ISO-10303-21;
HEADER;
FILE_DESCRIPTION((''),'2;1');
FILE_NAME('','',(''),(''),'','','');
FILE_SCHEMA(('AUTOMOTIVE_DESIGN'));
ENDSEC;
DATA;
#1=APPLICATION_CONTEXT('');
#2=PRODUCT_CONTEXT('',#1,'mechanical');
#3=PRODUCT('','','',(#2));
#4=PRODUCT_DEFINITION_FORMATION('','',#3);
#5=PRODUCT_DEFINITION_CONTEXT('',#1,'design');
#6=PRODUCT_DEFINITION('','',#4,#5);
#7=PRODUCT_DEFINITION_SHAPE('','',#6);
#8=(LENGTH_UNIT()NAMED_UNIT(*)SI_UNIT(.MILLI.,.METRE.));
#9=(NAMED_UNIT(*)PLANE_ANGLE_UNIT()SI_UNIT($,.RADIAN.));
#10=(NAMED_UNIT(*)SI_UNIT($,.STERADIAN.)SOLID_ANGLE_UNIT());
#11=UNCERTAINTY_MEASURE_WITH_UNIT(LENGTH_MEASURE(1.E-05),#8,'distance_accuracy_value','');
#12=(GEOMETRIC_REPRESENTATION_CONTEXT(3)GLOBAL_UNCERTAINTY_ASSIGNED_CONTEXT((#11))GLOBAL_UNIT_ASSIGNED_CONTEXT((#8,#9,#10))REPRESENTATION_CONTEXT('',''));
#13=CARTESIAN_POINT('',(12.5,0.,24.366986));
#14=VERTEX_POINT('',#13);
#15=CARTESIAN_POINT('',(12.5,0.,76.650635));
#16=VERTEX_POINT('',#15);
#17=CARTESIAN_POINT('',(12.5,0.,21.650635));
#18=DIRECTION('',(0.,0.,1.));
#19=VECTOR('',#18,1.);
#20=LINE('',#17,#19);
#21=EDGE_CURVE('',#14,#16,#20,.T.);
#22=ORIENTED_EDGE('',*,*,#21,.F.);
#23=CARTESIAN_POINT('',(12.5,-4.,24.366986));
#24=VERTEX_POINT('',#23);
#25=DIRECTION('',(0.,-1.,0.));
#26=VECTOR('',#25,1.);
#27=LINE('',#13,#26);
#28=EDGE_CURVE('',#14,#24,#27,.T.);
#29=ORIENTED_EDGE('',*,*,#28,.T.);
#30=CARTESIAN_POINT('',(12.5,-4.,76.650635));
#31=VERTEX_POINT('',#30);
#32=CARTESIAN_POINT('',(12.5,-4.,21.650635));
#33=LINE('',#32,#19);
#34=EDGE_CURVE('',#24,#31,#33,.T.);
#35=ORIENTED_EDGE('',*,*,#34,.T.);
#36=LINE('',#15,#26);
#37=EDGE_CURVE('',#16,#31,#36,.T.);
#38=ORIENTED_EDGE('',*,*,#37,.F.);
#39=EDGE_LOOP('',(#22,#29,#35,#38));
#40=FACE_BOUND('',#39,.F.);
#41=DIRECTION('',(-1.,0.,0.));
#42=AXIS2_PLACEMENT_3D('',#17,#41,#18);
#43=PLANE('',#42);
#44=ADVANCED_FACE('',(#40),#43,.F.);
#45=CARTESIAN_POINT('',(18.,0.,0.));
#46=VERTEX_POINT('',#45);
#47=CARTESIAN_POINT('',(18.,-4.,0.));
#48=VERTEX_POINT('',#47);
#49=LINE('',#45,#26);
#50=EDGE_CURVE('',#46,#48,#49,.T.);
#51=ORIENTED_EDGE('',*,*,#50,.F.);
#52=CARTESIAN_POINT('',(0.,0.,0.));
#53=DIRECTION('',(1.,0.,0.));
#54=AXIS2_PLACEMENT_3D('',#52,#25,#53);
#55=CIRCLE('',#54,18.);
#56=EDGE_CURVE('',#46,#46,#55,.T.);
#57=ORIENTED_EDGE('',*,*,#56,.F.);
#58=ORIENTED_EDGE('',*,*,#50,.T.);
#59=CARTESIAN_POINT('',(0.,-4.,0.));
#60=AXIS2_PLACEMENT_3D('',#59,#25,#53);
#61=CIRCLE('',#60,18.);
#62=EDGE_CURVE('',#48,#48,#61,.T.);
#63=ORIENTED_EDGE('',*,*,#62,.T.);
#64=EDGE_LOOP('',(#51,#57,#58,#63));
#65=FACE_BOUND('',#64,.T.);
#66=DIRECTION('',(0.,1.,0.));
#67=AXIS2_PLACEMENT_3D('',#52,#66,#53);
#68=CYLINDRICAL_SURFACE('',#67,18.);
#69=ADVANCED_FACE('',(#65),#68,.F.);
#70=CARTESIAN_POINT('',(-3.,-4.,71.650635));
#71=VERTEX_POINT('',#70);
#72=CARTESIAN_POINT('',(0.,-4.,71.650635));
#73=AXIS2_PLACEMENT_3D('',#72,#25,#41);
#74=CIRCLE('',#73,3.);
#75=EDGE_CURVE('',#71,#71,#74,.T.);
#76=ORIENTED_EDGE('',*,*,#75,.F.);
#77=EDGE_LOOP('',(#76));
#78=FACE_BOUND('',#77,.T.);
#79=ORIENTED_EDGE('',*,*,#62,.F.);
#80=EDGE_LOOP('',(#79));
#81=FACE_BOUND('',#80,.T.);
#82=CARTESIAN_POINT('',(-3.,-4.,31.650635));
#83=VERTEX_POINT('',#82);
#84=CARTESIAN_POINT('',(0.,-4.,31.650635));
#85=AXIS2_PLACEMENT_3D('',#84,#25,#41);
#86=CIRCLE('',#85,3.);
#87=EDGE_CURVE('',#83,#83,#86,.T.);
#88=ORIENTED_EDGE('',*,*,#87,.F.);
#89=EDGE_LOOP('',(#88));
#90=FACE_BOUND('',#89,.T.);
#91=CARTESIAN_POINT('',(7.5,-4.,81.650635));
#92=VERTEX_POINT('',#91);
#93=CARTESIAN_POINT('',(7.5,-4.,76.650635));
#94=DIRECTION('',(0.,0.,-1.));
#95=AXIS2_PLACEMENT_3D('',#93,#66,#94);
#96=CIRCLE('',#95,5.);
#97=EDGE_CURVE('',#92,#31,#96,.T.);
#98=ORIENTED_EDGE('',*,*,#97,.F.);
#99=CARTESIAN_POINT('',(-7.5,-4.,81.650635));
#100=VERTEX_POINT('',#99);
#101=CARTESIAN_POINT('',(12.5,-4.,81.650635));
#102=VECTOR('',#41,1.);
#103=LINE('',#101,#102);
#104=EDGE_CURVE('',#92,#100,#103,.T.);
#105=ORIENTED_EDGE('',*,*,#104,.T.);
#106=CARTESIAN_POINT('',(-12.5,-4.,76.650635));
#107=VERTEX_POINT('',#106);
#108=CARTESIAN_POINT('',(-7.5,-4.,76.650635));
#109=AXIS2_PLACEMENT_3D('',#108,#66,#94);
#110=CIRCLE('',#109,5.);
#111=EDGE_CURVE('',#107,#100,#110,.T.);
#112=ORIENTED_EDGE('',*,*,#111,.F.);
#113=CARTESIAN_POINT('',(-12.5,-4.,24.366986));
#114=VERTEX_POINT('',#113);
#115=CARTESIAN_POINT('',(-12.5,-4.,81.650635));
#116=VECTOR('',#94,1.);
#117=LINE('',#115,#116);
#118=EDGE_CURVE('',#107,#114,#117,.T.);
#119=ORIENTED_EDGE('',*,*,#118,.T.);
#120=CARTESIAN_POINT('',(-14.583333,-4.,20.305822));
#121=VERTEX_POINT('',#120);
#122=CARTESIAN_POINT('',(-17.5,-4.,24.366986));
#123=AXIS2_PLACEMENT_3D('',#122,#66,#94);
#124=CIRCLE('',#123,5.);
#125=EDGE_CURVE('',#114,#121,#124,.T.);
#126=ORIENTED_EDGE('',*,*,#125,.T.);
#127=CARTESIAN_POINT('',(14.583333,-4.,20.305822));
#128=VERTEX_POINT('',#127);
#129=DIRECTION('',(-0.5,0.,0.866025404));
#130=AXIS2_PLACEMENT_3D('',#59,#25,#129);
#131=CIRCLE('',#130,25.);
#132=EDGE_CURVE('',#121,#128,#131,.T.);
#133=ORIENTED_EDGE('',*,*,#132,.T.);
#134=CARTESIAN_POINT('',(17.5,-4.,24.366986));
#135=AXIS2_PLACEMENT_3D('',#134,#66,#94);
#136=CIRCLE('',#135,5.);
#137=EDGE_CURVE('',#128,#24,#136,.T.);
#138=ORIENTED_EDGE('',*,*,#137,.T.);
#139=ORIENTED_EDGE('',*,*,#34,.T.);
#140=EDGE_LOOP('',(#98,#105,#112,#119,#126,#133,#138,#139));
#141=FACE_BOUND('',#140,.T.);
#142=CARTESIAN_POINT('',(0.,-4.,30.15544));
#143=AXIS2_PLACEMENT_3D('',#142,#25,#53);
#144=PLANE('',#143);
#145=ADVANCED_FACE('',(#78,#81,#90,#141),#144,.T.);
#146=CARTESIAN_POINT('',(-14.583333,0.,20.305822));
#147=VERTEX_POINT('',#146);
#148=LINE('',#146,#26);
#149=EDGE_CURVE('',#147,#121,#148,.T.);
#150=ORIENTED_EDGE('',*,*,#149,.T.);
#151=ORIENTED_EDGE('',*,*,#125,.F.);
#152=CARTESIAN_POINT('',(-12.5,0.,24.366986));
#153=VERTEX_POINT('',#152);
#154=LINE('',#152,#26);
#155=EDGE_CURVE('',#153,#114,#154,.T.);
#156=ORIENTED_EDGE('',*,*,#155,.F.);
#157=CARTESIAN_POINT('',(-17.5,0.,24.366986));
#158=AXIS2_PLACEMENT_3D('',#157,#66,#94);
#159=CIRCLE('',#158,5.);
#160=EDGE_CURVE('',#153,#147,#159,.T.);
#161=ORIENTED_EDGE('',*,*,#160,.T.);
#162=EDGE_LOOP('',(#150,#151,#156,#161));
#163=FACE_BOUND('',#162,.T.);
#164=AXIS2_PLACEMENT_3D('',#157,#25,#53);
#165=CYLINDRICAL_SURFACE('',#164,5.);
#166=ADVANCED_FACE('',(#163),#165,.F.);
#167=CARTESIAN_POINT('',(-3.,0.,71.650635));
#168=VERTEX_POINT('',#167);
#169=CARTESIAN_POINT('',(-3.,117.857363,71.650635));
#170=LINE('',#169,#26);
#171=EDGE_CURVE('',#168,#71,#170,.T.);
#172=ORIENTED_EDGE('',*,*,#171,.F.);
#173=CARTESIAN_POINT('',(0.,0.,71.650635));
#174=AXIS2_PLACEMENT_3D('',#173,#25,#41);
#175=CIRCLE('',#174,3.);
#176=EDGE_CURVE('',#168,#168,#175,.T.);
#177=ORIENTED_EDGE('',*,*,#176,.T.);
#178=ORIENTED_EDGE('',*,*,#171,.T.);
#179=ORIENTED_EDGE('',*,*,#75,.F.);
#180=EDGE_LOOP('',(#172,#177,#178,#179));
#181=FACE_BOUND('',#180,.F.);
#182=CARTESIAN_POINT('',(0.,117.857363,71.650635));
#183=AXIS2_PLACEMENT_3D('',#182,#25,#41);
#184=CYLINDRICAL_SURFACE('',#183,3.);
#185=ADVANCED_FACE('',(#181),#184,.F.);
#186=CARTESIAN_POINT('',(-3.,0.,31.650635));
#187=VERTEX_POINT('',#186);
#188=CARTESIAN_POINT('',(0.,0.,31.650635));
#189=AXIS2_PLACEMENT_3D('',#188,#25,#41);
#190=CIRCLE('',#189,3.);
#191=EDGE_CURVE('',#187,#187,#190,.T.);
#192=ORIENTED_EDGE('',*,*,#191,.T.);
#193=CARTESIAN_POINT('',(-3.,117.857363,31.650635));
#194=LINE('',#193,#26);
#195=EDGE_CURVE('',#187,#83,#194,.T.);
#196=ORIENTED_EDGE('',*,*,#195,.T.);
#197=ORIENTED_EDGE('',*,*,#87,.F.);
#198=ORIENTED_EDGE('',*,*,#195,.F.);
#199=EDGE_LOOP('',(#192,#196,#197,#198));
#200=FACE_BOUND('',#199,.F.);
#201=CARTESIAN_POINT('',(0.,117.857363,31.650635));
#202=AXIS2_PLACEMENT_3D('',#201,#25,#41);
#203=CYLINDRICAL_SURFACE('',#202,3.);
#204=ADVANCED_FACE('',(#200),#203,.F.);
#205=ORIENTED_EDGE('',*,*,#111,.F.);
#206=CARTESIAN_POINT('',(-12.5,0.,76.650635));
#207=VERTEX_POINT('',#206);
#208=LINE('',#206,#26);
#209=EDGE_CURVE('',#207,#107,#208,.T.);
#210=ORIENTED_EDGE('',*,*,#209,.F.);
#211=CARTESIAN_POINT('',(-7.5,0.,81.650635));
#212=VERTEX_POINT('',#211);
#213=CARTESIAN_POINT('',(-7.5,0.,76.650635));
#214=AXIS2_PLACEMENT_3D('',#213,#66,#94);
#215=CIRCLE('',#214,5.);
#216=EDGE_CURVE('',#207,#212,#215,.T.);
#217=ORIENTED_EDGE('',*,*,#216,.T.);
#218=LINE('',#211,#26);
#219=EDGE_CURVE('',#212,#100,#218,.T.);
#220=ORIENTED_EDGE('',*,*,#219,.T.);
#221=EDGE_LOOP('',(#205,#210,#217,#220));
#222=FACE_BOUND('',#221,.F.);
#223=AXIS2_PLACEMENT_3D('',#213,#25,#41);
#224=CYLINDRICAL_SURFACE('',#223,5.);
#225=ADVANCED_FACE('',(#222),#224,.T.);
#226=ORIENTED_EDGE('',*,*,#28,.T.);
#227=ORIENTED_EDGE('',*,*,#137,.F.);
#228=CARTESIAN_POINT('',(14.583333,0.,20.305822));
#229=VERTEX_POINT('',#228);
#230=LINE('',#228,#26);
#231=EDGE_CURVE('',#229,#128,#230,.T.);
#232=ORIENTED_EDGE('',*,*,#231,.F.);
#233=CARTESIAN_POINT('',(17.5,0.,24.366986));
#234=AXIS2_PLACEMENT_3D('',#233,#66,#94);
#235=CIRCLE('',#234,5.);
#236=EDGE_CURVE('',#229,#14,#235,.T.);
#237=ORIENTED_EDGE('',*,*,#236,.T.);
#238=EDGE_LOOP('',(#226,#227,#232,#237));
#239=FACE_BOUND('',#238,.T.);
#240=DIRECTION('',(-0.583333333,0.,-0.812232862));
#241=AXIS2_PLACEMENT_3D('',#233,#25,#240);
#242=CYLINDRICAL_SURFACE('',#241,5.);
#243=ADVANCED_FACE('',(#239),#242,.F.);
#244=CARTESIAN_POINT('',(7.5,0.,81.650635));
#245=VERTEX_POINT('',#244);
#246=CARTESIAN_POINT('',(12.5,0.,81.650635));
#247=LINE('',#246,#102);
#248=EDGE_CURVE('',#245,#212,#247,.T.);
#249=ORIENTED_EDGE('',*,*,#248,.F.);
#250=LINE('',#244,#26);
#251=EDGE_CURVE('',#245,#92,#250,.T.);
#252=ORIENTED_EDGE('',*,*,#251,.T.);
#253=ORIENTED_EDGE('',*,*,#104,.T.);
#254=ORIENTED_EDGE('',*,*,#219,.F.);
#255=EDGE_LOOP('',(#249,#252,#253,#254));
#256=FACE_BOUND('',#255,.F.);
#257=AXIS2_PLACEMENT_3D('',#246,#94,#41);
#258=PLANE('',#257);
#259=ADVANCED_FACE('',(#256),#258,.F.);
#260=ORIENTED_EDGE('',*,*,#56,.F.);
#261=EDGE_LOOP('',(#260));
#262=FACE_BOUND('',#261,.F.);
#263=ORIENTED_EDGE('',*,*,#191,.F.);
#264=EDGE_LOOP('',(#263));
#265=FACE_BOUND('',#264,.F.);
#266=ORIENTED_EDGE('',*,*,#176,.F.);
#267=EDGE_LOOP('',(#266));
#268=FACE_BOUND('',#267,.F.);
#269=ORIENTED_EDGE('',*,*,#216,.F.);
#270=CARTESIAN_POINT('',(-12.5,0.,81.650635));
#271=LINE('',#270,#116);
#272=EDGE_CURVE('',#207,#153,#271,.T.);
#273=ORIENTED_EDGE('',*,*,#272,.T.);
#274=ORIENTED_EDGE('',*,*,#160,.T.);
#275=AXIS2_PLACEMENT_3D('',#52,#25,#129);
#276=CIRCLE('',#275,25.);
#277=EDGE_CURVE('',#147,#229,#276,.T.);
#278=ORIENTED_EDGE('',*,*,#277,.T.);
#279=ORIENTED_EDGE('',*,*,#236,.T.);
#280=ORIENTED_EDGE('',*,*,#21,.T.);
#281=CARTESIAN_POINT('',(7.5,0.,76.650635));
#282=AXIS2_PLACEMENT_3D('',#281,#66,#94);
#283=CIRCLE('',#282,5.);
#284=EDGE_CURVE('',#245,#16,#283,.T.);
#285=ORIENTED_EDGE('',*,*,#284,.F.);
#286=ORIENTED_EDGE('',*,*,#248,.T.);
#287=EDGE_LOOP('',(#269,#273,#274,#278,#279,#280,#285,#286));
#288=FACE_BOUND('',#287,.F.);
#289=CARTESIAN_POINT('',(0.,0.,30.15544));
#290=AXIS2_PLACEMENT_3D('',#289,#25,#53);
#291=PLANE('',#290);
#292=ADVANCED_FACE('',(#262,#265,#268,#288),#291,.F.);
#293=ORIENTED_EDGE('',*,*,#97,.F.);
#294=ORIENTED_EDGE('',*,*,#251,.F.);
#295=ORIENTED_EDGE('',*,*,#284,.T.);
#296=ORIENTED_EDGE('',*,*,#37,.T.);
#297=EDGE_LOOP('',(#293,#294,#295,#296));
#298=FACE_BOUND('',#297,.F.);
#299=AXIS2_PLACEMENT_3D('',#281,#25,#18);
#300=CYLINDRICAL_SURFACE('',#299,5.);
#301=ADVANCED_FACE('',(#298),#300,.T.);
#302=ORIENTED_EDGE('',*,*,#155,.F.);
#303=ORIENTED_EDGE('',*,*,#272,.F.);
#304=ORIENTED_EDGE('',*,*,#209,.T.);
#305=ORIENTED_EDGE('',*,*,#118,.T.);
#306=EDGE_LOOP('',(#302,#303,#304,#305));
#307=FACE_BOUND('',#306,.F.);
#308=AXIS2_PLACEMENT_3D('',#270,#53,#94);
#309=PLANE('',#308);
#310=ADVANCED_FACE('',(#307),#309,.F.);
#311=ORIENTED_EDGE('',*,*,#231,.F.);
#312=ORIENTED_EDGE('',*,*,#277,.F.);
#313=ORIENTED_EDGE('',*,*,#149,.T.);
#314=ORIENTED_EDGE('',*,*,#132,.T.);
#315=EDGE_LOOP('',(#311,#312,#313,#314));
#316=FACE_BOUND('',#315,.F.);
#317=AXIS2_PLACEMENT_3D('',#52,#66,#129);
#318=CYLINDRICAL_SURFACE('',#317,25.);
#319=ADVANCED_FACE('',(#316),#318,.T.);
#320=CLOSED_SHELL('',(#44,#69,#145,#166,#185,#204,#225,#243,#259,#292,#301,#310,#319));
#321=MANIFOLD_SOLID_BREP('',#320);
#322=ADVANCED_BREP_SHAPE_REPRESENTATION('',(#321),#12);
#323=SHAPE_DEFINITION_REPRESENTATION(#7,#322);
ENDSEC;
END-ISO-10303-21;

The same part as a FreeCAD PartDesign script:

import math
import FreeCAD as App
import Part
import Sketcher
from FreeCAD import Vector
Q = App.Units.Quantity


def edges_at(feature, points):
    """Names of the edges that pass closest to the given points."""
    edges = feature.Shape.Edges
    near = lambda p: min(range(len(edges)), key=lambda i: edges[i].distToShape(Part.Vertex(*p))[0])
    return sorted({f"Edge{near(p) + 1}" for p in points})

doc = App.newDocument("Part")
body = doc.addObject("PartDesign::Body", "Body")

# Sketch on XZ plane
sketch1 = body.newObject("Sketcher::SketchObject", "Sketch")
sketch1.AttachmentSupport = (doc.getObject("XZ_Plane"), [""])
sketch1.MapMode = "FlatFace"
sketch1.addGeometry(Part.LineSegment(Vector(-12.5, 81.650635, 0), Vector(-12.5, 21.650635, 0)), False)
sketch1.addGeometry(Part.ArcOfCircle(Part.Circle(Vector(0, 0, 0), Vector(0, 0, 1), 25), math.radians(120), math.radians(420)), False)
sketch1.addGeometry(Part.LineSegment(Vector(12.5, 21.650635, 0), Vector(12.5, 81.650635, 0)), False)
sketch1.addGeometry(Part.LineSegment(Vector(12.5, 81.650635, 0), Vector(-12.5, 81.650635, 0)), False)
sketch1.addGeometry(Part.Circle(Vector(0, 0, 0), Vector(0, 0, 1), 18), False)
sketch1.addConstraint(Sketcher.Constraint("Coincident", 0, 2, 1, 1))
sketch1.addConstraint(Sketcher.Constraint("Coincident", 1, 2, 2, 1))
sketch1.addConstraint(Sketcher.Constraint("Coincident", 2, 2, 3, 1))
sketch1.addConstraint(Sketcher.Constraint("Coincident", 3, 2, 0, 1))
sketch1.addConstraint(Sketcher.Constraint("Vertical", 0))
sketch1.addConstraint(Sketcher.Constraint("Vertical", 2))
sketch1.addConstraint(Sketcher.Constraint("Horizontal", 3))
sketch1.addConstraint(Sketcher.Constraint("Coincident", 1, 3, -1, 1))
sketch1.addConstraint(Sketcher.Constraint("Coincident", 4, 3, -1, 1))
sketch1.addConstraint(Sketcher.Constraint("Horizontal", 0, 2, 1, 2))
sketch1.addConstraint(Sketcher.Constraint("Diameter", 4, Q("36 mm")))
sketch1.addConstraint(Sketcher.Constraint("Radius", 1, Q("25 mm")))
sketch1.addConstraint(Sketcher.Constraint("DistanceX", 3, 2, 3, 1, Q("25 mm")))
sketch1.addConstraint(Sketcher.Constraint("DistanceY", 0, 2, 0, 1, Q("60 mm")))
pad1 = body.newObject("PartDesign::Pad", "Pad")
pad1.Profile = sketch1
pad1.Length = 4
doc.recompute()

fillet = body.newObject("PartDesign::Fillet", "Fillet")
fillet.Base = (pad1, edges_at(pad1, [
    (12.5, -2, 81.651),
    (12.5, -2, 21.651),
    (-12.5, -2, 21.651),
    (-12.5, -2, 81.651),
]))
fillet.Radius = 5

# Sketch on XZ plane
sketch2 = body.newObject("Sketcher::SketchObject", "Sketch001")
sketch2.AttachmentSupport = (doc.getObject("XZ_Plane"), [""])
sketch2.MapMode = "FlatFace"
sketch2.addGeometry(Part.Circle(Vector(0, 31.650635, 0), Vector(0, 0, 1), 3), False)
sketch2.addGeometry(Part.Circle(Vector(0, 71.650635, 0), Vector(0, 0, 1), 3), False)
sketch2.addConstraint(Sketcher.Constraint("Equal", 0, 1))
sketch2.addConstraint(Sketcher.Constraint("PointOnObject", 0, 3, -2))
sketch2.addConstraint(Sketcher.Constraint("PointOnObject", 1, 3, -2))
sketch2.addConstraint(Sketcher.Constraint("Diameter", 0, Q("6 mm")))
sketch2.addConstraint(Sketcher.Constraint("DistanceY", 0, 3, 1, 3, Q("40 mm")))
sketch2.addConstraint(Sketcher.Constraint("DistanceY", -1, 1, 0, 3, Q("31.650635 mm")))
doc.recompute()
hole = body.newObject("PartDesign::Hole", "Hole")
hole.Profile = sketch2
hole.ThreadType = "None"
hole.Diameter = 6
hole.DepthType = "ThroughAll"
hole.Reversed = True

doc.recompute()
